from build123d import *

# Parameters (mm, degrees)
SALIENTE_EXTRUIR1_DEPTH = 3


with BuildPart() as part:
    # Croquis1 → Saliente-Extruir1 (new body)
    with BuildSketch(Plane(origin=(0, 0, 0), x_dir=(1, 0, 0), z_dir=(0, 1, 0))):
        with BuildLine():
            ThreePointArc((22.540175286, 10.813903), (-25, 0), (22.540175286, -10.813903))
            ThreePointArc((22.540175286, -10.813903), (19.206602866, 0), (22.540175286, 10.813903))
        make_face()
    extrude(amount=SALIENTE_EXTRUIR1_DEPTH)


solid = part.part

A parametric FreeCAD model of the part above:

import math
import FreeCAD as App
import Part
import Sketcher

V = App.Vector
Q = App.Units.Quantity

doc = App.newDocument("Part")
params = doc.addObject("Spreadsheet::Sheet", "Params")
for row, (alias, value) in enumerate([
    ("sketch1_radius", "25 mm"),
    ("pad1_length", "3 mm"),
], start=1):
    params.set(f"A{row}", alias)
    params.set(f"B{row}", "=" + value)
    params.setAlias(f"B{row}", alias)

body = doc.addObject("PartDesign::Body", "Body")

# Sketch on XZ plane
sketch1 = body.newObject("Sketcher::SketchObject", "Sketch")
sketch1.AttachmentSupport = (doc.getObject("XZ_Plane"), [""])
sketch1.MapMode = "FlatFace"
sketch1.addGeometry(Part.ArcOfCircle(Part.Circle(V(0, 0, 0), V(0, 0, 1), 25), math.radians(26), math.radians(334)), False)
sketch1.addGeometry(Part.ArcOfCircle(Part.Circle(V(38, 0, 0), V(0, 0, 1), 19), math.radians(146), math.radians(214)), False)
sketch1.addConstraint(Sketcher.Constraint("Coincident", 0, 1, 1, 1))
sketch1.addConstraint(Sketcher.Constraint("Coincident", 1, 2, 0, 2))
sketch1.addConstraint(Sketcher.Constraint("Coincident", 0, 3, -1, 1))
sketch1.addConstraint(Sketcher.Constraint("PointOnObject", 1, 3, -1))
sketch1.addConstraint(Sketcher.Constraint("Radius", 0, Q("25 mm")))
sketch1.addConstraint(Sketcher.Constraint("Radius", 1, Q("19.206603 mm")))
sketch1.addConstraint(Sketcher.Constraint("DistanceX", 0, 1, 1, 3, Q("15.87303 mm")))
sketch1.setExpression("Constraints[4]", "Params.sketch1_radius")
pad1 = body.newObject("PartDesign::Pad", "Pad")
pad1.Profile = sketch1
pad1.setExpression("Length", "Params.pad1_length")
pad1.Reversed = True

doc.recompute()
